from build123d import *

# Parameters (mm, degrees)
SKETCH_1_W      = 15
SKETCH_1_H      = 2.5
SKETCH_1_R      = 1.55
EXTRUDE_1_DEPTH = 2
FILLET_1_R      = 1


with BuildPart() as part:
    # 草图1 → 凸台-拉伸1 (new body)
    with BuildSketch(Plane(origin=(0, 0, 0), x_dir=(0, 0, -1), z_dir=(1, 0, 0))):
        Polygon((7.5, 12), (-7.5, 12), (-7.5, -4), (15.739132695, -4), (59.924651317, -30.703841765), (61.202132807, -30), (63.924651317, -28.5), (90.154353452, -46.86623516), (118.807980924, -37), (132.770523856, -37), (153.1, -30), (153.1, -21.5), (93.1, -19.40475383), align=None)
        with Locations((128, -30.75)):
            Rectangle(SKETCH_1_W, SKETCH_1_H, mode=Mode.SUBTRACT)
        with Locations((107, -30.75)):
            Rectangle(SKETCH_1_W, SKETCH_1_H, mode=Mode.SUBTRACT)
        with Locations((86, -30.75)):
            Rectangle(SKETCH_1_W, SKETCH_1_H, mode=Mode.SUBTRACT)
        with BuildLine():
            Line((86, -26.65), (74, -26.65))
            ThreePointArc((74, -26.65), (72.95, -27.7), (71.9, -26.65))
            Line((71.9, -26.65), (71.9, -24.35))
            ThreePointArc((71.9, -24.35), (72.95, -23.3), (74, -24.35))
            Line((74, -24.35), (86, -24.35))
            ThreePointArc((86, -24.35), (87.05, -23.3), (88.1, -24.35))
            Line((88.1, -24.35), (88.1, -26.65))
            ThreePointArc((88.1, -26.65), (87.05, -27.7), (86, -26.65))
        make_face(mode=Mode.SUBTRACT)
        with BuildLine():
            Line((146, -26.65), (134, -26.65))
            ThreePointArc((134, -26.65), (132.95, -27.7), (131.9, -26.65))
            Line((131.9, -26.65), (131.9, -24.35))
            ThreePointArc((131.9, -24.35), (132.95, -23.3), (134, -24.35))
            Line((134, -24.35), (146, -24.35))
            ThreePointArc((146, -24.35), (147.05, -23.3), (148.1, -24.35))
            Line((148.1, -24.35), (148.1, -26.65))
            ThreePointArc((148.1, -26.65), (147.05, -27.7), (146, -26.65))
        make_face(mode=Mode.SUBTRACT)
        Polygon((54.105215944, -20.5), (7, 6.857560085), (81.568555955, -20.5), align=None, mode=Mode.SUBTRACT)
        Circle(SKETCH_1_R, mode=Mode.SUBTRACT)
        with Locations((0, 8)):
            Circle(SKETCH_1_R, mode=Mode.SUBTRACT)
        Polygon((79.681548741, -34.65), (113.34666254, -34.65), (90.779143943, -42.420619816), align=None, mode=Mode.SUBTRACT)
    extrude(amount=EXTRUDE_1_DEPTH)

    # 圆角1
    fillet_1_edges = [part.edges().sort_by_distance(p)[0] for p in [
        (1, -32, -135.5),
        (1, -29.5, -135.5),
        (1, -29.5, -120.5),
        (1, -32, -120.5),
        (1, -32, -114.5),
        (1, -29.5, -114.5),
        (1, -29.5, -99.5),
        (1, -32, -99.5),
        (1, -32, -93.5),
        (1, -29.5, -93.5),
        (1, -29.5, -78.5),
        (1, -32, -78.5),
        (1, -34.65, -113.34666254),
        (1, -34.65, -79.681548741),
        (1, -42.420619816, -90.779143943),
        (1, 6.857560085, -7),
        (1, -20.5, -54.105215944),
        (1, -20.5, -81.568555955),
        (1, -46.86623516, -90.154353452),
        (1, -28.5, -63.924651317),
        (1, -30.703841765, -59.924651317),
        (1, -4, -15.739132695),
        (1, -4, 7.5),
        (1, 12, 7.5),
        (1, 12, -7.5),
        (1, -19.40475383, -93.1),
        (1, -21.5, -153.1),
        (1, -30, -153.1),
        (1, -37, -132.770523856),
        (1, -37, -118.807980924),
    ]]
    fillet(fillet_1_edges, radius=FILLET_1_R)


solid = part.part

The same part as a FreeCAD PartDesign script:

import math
import FreeCAD as App
import Part
import Sketcher

V = App.Vector
Q = App.Units.Quantity


def edges_at(feature, points):
    """Names of the edges that pass closest to the given points."""
    edges = feature.Shape.Edges
    near = lambda p: min(range(len(edges)), key=lambda i: edges[i].distToShape(Part.Vertex(*p))[0])
    return sorted({f"Edge{near(p) + 1}" for p in points})


def add_polygon(sketch, points):
    """Adds a closed chain of lines whose ends are joined by coincident constraints."""
    first, n = sketch.GeometryCount, len(points)
    for a, b in zip(points, points[1:] + points[:1]):
        sketch.addGeometry(Part.LineSegment(App.Vector(*a, 0), App.Vector(*b, 0)), False)
    for i in range(n):
        sketch.addConstraint(Sketcher.Constraint("Coincident", first + i, 2, first + (i + 1) % n, 1))

doc = App.newDocument("Part")
body = doc.addObject("PartDesign::Body", "Body")

sketch1 = body.newObject("Sketcher::SketchObject", "Sketch")
sketch1.AttachmentSupport = (doc.getObject("YZ_Plane"), [""])
sketch1.MapMode = "FlatFace"
add_polygon(sketch1, [(12, -7.5), (12, 7.5), (-4, 7.5), (-4, -15.7), (-30.7, -59.9), (-30, -61.2), (-28.5, -63.9), (-46.9, -90.2), (-37, -118.8), (-37, -132.8), (-30, -153.1), (-21.5, -153.1), (-19.4, -93.1)])
add_polygon(sketch1, [(-42.4, -90.8), (-34.6, -79.7), (-34.6, -113.3)])
add_polygon(sketch1, [(-32, -93.5), (-32, -78.5), (-29.5, -78.5), (-29.5, -93.5)])
add_polygon(sketch1, [(-32, -114.5), (-32, -99.5), (-29.5, -99.5), (-29.5, -114.5)])
add_polygon(sketch1, [(-32, -135.5), (-32, -120.5), (-29.5, -120.5), (-29.5, -135.5)])
sketch1.addGeometry(Part.ArcOfCircle(Part.Circle(V(-26.6, -87, 0), V(0, 0, 1), 1.1), math.radians(90), math.radians(270)), False)
sketch1.addGeometry(Part.LineSegment(V(-26.6, -86, 0), V(-26.6, -74, 0)), False)
sketch1.addGeometry(Part.ArcOfCircle(Part.Circle(V(-26.6, -73, 0), V(0, 0, 1), 1.1), math.radians(90), math.radians(270)), False)
sketch1.addGeometry(Part.LineSegment(V(-26.6, -71.9, 0), V(-24.4, -71.9, 0)), False)
sketch1.addGeometry(Part.ArcOfCircle(Part.Circle(V(-24.4, -73, 0), V(0, 0, 1), 1.1), math.radians(-90), math.radians(90)), False)
sketch1.addGeometry(Part.LineSegment(V(-24.4, -74, 0), V(-24.4, -86, 0)), False)
sketch1.addGeometry(Part.ArcOfCircle(Part.Circle(V(-24.4, -87, 0), V(0, 0, 1), 1.1), math.radians(-90), math.radians(90)), False)
sketch1.addGeometry(Part.LineSegment(V(-24.4, -88.1, 0), V(-26.6, -88.1, 0)), False)
sketch1.addGeometry(Part.ArcOfCircle(Part.Circle(V(-26.6, -147.1, 0), V(0, 0, 1), 1.1), math.radians(90), math.radians(270)), False)
sketch1.addGeometry(Part.LineSegment(V(-26.6, -146, 0), V(-26.6, -134, 0)), False)
sketch1.addGeometry(Part.ArcOfCircle(Part.Circle(V(-26.6, -132.9, 0), V(0, 0, 1), 1.1), math.radians(90), math.radians(270)), False)
sketch1.addGeometry(Part.LineSegment(V(-26.6, -131.9, 0), V(-24.4, -131.9, 0)), False)
sketch1.addGeometry(Part.ArcOfCircle(Part.Circle(V(-24.4, -132.9, 0), V(0, 0, 1), 1.1), math.radians(-90), math.radians(90)), False)
sketch1.addGeometry(Part.LineSegment(V(-24.4, -134, 0), V(-24.4, -146, 0)), False)
sketch1.addGeometry(Part.ArcOfCircle(Part.Circle(V(-24.4, -147.1, 0), V(0, 0, 1), 1.1), math.radians(-90), math.radians(90)), False)
sketch1.addGeometry(Part.LineSegment(V(-24.4, -148.1, 0), V(-26.6, -148.1, 0)), False)
add_polygon(sketch1, [(-20.5, -81.6), (-20.5, -54.1), (6.9, -7)])
sketch1.addGeometry(Part.Circle(V(0, 0, 0), V(0, 0, 1), 1.6), False)
sketch1.addGeometry(Part.Circle(V(8, 0, 0), V(0, 0, 1), 1.6), False)
sketch1.addConstraint([
    Sketcher.Constraint("Coincident", 28, 1, 29, 1),
    Sketcher.Constraint("Coincident", 29, 2, 30, 2),
    Sketcher.Constraint("Tangent", 30, 1, 31, 1),
    Sketcher.Constraint("Tangent", 31, 2, 32, 2),
    Sketcher.Constraint("Coincident", 32, 1, 33, 1),
    Sketcher.Constraint("Coincident", 33, 2, 34, 2),
    Sketcher.Constraint("Tangent", 34, 1, 35, 1),
    Sketcher.Constraint("Tangent", 35, 2, 28, 2),
    Sketcher.Constraint("Coincident", 36, 1, 37, 1),
    Sketcher.Constraint("Coincident", 37, 2, 38, 2),
    Sketcher.Constraint("Tangent", 38, 1, 39, 1),
    Sketcher.Constraint("Tangent", 39, 2, 40, 2),
    Sketcher.Constraint("Coincident", 40, 1, 41, 1),
    Sketcher.Constraint("Coincident", 41, 2, 42, 2),
    Sketcher.Constraint("Tangent", 42, 1, 43, 1),
    Sketcher.Constraint("Tangent", 43, 2, 36, 2),
    Sketcher.Constraint("Vertical", 0),
    Sketcher.Constraint("Horizontal", 1),
    Sketcher.Constraint("Vertical", 2),
    Sketcher.Constraint("Vertical", 8),
    Sketcher.Constraint("Horizontal", 10),
    Sketcher.Constraint("Vertical", 14),
    Sketcher.Constraint("Vertical", 16),
    Sketcher.Constraint("Horizontal", 17),
    Sketcher.Constraint("Vertical", 18),
    Sketcher.Constraint("Horizontal", 19),
    Sketcher.Constraint("Vertical", 20),
    Sketcher.Constraint("Horizontal", 21),
    Sketcher.Constraint("Vertical", 22),
    Sketcher.Constraint("Horizontal", 23),
    Sketcher.Constraint("Vertical", 24),
    Sketcher.Constraint("Horizontal", 25),
    Sketcher.Constraint("Vertical", 26),
    Sketcher.Constraint("Horizontal", 27),
    Sketcher.Constraint("Vertical", 29),
    Sketcher.Constraint("Horizontal", 31),
    Sketcher.Constraint("Vertical", 33),
    Sketcher.Constraint("Horizontal", 35),
    Sketcher.Constraint("Vertical", 37),
    Sketcher.Constraint("Horizontal", 39),
    Sketcher.Constraint("Vertical", 41),
    Sketcher.Constraint("Horizontal", 43),
    Sketcher.Constraint("Vertical", 44),
    Sketcher.Constraint("Coincident", 47, 3, -1, 1),
    Sketcher.Constraint("Equal", 28, 30),
    Sketcher.Constraint("Equal", 30, 32),
    Sketcher.Constraint("Equal", 32, 34),
    Sketcher.Constraint("Equal", 34, 36),
    Sketcher.Constraint("Equal", 36, 38),
    Sketcher.Constraint("Equal", 38, 40),
    Sketcher.Constraint("Equal", 40, 42),
    Sketcher.Constraint("Equal", 47, 48),
    Sketcher.Constraint("PointOnObject", 48, 3, -1),
    Sketcher.Constraint("Parallel", 4, 5),
    Sketcher.Constraint("Parallel", 7, 9),
    Sketcher.Constraint("Parallel", 6, 13),
    Sketcher.Constraint("Parallel", 9, 15),
    Sketcher.Constraint("Parallel", 12, 46),
    Sketcher.Constraint("Vertical", 28, 3, 30, 3),
    Sketcher.Constraint("Vertical", 32, 3, 34, 3),
    Sketcher.Constraint("Vertical", 30, 3, 36, 3),
    Sketcher.Constraint("Vertical", 36, 3, 38, 3),
    Sketcher.Constraint("Vertical", 34, 3, 40, 3),
    Sketcher.Constraint("Vertical", 40, 3, 42, 3),
    Sketcher.Constraint("Vertical", 4, 2, 9, 2),
    Sketcher.Constraint("Vertical", 19, 2, 20, 2),
    Sketcher.Constraint("Vertical", 18, 2, 21, 2),
    Sketcher.Constraint("Vertical", 23, 2, 24, 2),
    Sketcher.Constraint("Vertical", 22, 2, 25, 2),
    Sketcher.Constraint("Vertical", 38, 3, 28, 1),
    Sketcher.Constraint("Vertical", 31, 2, 32, 1),
    Sketcher.Constraint("Vertical", 35, 2, 36, 1),
    Sketcher.Constraint("Vertical", 39, 2, 40, 1),
    Sketcher.Constraint("Equal", 0, 16),
    Sketcher.Constraint("Equal", 18, 20),
    Sketcher.Constraint("Equal", 22, 24),
    Sketcher.Constraint("Equal", 33, 37),
    Sketcher.Constraint("Diameter", 47, 3.1),
    Sketcher.Constraint("DistanceX", 1, 2, 1, 1, 16.0),
    Sketcher.Constraint("DistanceY", 0, 1, 0, 2, 15.0),
    Sketcher.Constraint("DistanceY", 29, 1, 29, 2, 12.0),
    Sketcher.Constraint("Angle", 6, Q("-125 deg")),
    Sketcher.Constraint("Angle", 7, Q("-71 deg")),
    Sketcher.Constraint("Angle", 11, Q("88 deg")),
    Sketcher.Constraint("Radius", 28, 1.05),
    Sketcher.Constraint("DistanceX", 10, 1, 10, 2, 8.5),
    Sketcher.Constraint("DistanceX", 17, 1, 17, 2, 2.5),
    Sketcher.Constraint("DistanceX", 31, 1, 31, 2, 2.3),
    Sketcher.Constraint("DistanceX", -1, 1, 48, 3, 8.0),
    Sketcher.Constraint("DistanceX", -1, 1, 0, 2, 12.0),
    Sketcher.Constraint("DistanceX", 4, 2, -1, 1, 30.0),
    Sketcher.Constraint("DistanceX", 7, 2, -1, 1, 37.0),
    Sketcher.Constraint("DistanceX", 16, 2, -1, 1, 32.0),
    Sketcher.Constraint("DistanceY", 28, 1, -1, 1, 86.0),
    Sketcher.Constraint("DistanceY", 36, 1, -1, 1, 146.0),
    Sketcher.Constraint("DistanceY", 45, 2, -1, 1, 7.0),
    Sketcher.Constraint("DistanceY", 5, 2, 3, 2, 4.0),
    Sketcher.Constraint("DistanceX", 13, 2, 30, 3, 8.0),
    Sketcher.Constraint("DistanceY", 20, 2, 19, 2, 6.0),
    Sketcher.Constraint("DistanceY", 24, 2, 23, 2, 6.0),
    Sketcher.Constraint("DistanceY", 11, 2, 34, 1, 5.0),
    Sketcher.Constraint("DistanceY", 10, 2, 42, 1, 5.0),
    Sketcher.Constraint("DistanceX", 5, 2, 44, 2, 8.0),
    Sketcher.Constraint("DistanceY", -1, 1, 0, 2, 7.5),
    Sketcher.Constraint("DistanceX", 5, 2, -1, 1, 28.5),
    Sketcher.Constraint("DistanceY", 16, 2, -1, 1, 78.5),
    Sketcher.Constraint("DistanceX", 28, 3, -1, 1, 26.65),
    Sketcher.Constraint("DistanceY", 44, 1, 44, 2, 27.46334),
    Sketcher.Constraint("Distance", 7, 30.304669),
    Sketcher.Constraint("Distance", 46, 79.42862),
    Sketcher.Constraint("DistanceY", 2, 2, 2, 1, 23.239133),
    Sketcher.Constraint("DistanceY", 8, 2, 8, 1, 13.962543),
    Sketcher.Constraint("DistanceY", 14, 2, 14, 1, 33.665114),
    Sketcher.Constraint("DistanceX", 3, 2, -1, 1, 30.703842),
    Sketcher.Constraint("DistanceY", 13, 2, -1, 1, 79.681549),
])
pad1 = body.newObject("PartDesign::Pad", "Pad")
pad1.Profile = sketch1
pad1.Length = 2
doc.recompute()

fillet = body.newObject("PartDesign::Fillet", "Fillet")
fillet.Base = (pad1, edges_at(pad1, [
    (1, -32, -135.5),
    (1, -29.5, -135.5),
    (1, -29.5, -120.5),
    (1, -32, -120.5),
    (1, -32, -114.5),
    (1, -29.5, -114.5),
    (1, -29.5, -99.5),
    (1, -32, -99.5),
    (1, -32, -93.5),
    (1, -29.5, -93.5),
    (1, -29.5, -78.5),
    (1, -32, -78.5),
    (1, -34.65, -113.347),
    (1, -34.65, -79.682),
    (1, -42.421, -90.779),
    (1, 6.858, -7),
    (1, -20.5, -54.105),
    (1, -20.5, -81.569),
    (1, -46.866, -90.154),
    (1, -28.5, -63.925),
    (1, -30.704, -59.925),
    (1, -4, -15.739),
    (1, -4, 7.5),
    (1, 12, 7.5),
    (1, 12, -7.5),
    (1, -19.405, -93.1),
    (1, -21.5, -153.1),
    (1, -30, -153.1),
    (1, -37, -132.771),
    (1, -37, -118.808),
]))
fillet.Radius = 1

doc.recompute()
